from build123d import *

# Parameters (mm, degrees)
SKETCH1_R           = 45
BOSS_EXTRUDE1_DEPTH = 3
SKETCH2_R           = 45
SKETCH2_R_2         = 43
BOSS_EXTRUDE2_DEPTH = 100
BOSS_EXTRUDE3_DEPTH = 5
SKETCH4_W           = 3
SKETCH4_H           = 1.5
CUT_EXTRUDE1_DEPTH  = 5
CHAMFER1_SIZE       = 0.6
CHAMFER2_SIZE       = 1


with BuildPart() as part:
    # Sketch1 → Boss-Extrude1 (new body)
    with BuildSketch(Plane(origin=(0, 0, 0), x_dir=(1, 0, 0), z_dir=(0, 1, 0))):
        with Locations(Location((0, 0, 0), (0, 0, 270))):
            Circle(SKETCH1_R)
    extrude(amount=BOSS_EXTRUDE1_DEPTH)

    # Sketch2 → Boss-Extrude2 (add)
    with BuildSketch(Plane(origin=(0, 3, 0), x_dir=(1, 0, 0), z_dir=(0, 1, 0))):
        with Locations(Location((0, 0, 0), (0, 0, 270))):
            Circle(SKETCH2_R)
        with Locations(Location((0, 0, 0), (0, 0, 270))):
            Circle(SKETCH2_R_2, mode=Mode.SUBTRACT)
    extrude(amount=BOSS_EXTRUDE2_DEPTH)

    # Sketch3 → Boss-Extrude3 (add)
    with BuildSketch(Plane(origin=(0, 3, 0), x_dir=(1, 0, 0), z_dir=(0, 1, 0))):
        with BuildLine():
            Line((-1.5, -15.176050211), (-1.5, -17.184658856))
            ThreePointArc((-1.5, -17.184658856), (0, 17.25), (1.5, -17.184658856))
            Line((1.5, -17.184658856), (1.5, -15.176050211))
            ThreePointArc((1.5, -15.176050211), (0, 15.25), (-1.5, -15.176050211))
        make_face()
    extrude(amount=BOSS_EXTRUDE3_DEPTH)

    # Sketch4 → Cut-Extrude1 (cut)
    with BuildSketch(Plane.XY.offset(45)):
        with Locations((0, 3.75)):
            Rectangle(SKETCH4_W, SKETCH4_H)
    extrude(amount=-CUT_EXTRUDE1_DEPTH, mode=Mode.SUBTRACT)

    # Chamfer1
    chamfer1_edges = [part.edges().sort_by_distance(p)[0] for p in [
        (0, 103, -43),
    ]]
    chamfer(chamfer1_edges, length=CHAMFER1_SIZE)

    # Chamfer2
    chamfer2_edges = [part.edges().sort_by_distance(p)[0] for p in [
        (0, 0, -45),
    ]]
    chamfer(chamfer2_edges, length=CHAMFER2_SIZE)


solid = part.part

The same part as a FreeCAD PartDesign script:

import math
import FreeCAD as App
import Part
import Sketcher

V = App.Vector


def edges_at(feature, points):
    """Names of the edges that pass closest to the given points."""
    edges = feature.Shape.Edges
    near = lambda p: min(range(len(edges)), key=lambda i: edges[i].distToShape(Part.Vertex(*p))[0])
    return sorted({f"Edge{near(p) + 1}" for p in points})


def add_polygon(sketch, points):
    """Adds a closed chain of lines whose ends are joined by coincident constraints."""
    first, n = sketch.GeometryCount, len(points)
    for a, b in zip(points, points[1:] + points[:1]):
        sketch.addGeometry(Part.LineSegment(App.Vector(*a, 0), App.Vector(*b, 0)), False)
    for i in range(n):
        sketch.addConstraint(Sketcher.Constraint("Coincident", first + i, 2, first + (i + 1) % n, 1))

doc = App.newDocument("Part")
params = doc.addObject("Spreadsheet::Sheet", "Params")
for row, (alias, value) in enumerate([
    ("sketch1_diameter", "90 mm"),
    ("pad1_length", "3 mm"),
    ("sketch2_diameter", "90 mm"),
    ("sketch2_diameter2", "86 mm"),
    ("pad2_length", "100 mm"),
    ("sketch3_radius", "15.25 mm"),
    ("sketch3_radius2", "17.25 mm"),
    ("pad3_length", "5 mm"),
    ("sketch4_width", "3 mm"),
    ("sketch4_height", "1.5 mm"),
    ("pocket1_length", "5 mm"),
    ("chamfer_size", "0.6 mm"),
    ("chamfer2_size", "1 mm"),
], start=1):
    params.set(f"A{row}", alias)
    params.set(f"B{row}", "=" + value)
    params.setAlias(f"B{row}", alias)

body = doc.addObject("PartDesign::Body", "Body")

# Sketch on XZ plane
sketch1 = body.newObject("Sketcher::SketchObject", "Sketch")
sketch1.AttachmentSupport = (doc.getObject("XZ_Plane"), [""])
sketch1.MapMode = "FlatFace"
sketch1.addGeometry(Part.Circle(V(0, 0, 0), V(0, 0, 1), 45), False)
sketch1.addConstraint([
    Sketcher.Constraint("Coincident", 0, 3, -1, 1),
    Sketcher.Constraint("Diameter", 0, 90.0),
])
sketch1.setExpression("Constraints[1]", "Params.sketch1_diameter")
pad1 = body.newObject("PartDesign::Pad", "Pad")
pad1.Profile = sketch1
pad1.setExpression("Length", "Params.pad1_length")
pad1.Reversed = True

# Sketch on XZ plane
sketch2 = body.newObject("Sketcher::SketchObject", "Sketch001")
sketch2.AttachmentSupport = (doc.getObject("XZ_Plane"), [""])
sketch2.MapMode = "FlatFace"
sketch2.AttachmentOffset = App.Placement(V(0, 0, -3), App.Rotation())
sketch2.addGeometry([
    Part.Circle(V(0, 0, 0), V(0, 0, 1), 45),
    Part.Circle(V(0, 0, 0), V(0, 0, 1), 43),
], False)
sketch2.addConstraint([
    Sketcher.Constraint("Coincident", 0, 3, -1, 1),
    Sketcher.Constraint("Coincident", 1, 3, -1, 1),
    Sketcher.Constraint("Diameter", 0, 90.0),
    Sketcher.Constraint("Diameter", 1, 86.0),
])
sketch2.setExpression("Constraints[2]", "Params.sketch2_diameter")
sketch2.setExpression("Constraints[3]", "Params.sketch2_diameter2")
pad2 = body.newObject("PartDesign::Pad", "Pad001")
pad2.Profile = sketch2
pad2.setExpression("Length", "Params.pad2_length")
pad2.Reversed = True

# Sketch on XZ plane
sketch3 = body.newObject("Sketcher::SketchObject", "Sketch002")
sketch3.AttachmentSupport = (doc.getObject("XZ_Plane"), [""])
sketch3.MapMode = "FlatFace"
sketch3.AttachmentOffset = App.Placement(V(0, 0, -3), App.Rotation())
sketch3.addGeometry([
    Part.LineSegment(V(-1.5, 17.184659, 0), V(-1.5, 15.17605, 0)),
    Part.ArcOfCircle(Part.Circle(V(0, 0, 0), V(0, 0, 1), 15.25), math.radians(95.644778), math.radians(444.355222)),
    Part.LineSegment(V(1.5, 15.17605, 0), V(1.5, 17.184659, 0)),
    Part.ArcOfCircle(Part.Circle(V(0, 0, 0), V(0, 0, 1), 17.25), math.radians(94.988542), math.radians(445.011458)),
], False)
sketch3.addConstraint([
    Sketcher.Constraint("Coincident", 0, 2, 1, 1),
    Sketcher.Constraint("Coincident", 1, 2, 2, 1),
    Sketcher.Constraint("Coincident", 2, 2, 3, 2),
    Sketcher.Constraint("Coincident", 3, 1, 0, 1),
    Sketcher.Constraint("Vertical", 0),
    Sketcher.Constraint("Vertical", 2),
    Sketcher.Constraint("Coincident", 1, 3, -1, 1),
    Sketcher.Constraint("Coincident", 3, 3, -1, 1),
    Sketcher.Constraint("Horizontal", 0, 2, 1, 2),
    Sketcher.Constraint("Radius", 1, 15.25),
    Sketcher.Constraint("Radius", 3, 17.25),
    Sketcher.Constraint("DistanceX", 0, 2, 1, 2, 3.0),
])
sketch3.setExpression("Constraints[9]", "Params.sketch3_radius")
sketch3.setExpression("Constraints[10]", "Params.sketch3_radius2")
pad3 = body.newObject("PartDesign::Pad", "Pad002")
pad3.Profile = sketch3
pad3.setExpression("Length", "Params.pad3_length")
pad3.Reversed = True

# Sketch on XY plane
sketch4 = body.newObject("Sketcher::SketchObject", "Sketch003")
sketch4.AttachmentSupport = (doc.getObject("XY_Plane"), [""])
sketch4.MapMode = "FlatFace"
sketch4.AttachmentOffset = App.Placement(V(0, 0, 45), App.Rotation())
add_polygon(sketch4, [(-1.5, 4.5), (-1.5, 3), (1.5, 3), (1.5, 4.5)])  # lines 0-3
sketch4.addConstraint([
    Sketcher.Constraint("Vertical", 0),
    Sketcher.Constraint("Horizontal", 1),
    Sketcher.Constraint("Vertical", 2),
    Sketcher.Constraint("Horizontal", 3),
    Sketcher.Constraint("DistanceX", 1, 1, 1, 2, 3.0),
    Sketcher.Constraint("DistanceY", 0, 2, 0, 1, 1.5),
    Sketcher.Constraint("DistanceY", -1, 1, 0, 2, 3.0),
    Sketcher.Constraint("DistanceX", 0, 2, -1, 1, 1.5),
])
sketch4.setExpression("Constraints[8]", "Params.sketch4_width")
sketch4.setExpression("Constraints[9]", "Params.sketch4_height")
pocket1 = body.newObject("PartDesign::Pocket", "Pocket")
pocket1.Profile = sketch4
pocket1.setExpression("Length", "Params.pocket1_length")
doc.recompute()

chamfer = body.newObject("PartDesign::Chamfer", "Chamfer")
chamfer.Base = (pocket1, edges_at(pocket1, [(0, 103, -43)]))
chamfer.setExpression("Size", "Params.chamfer_size")
doc.recompute()

chamfer2 = body.newObject("PartDesign::Chamfer", "Chamfer001")
chamfer2.Base = (chamfer, edges_at(chamfer, [(0, 0, -45)]))
chamfer2.setExpression("Size", "Params.chamfer2_size")

doc.recompute()
